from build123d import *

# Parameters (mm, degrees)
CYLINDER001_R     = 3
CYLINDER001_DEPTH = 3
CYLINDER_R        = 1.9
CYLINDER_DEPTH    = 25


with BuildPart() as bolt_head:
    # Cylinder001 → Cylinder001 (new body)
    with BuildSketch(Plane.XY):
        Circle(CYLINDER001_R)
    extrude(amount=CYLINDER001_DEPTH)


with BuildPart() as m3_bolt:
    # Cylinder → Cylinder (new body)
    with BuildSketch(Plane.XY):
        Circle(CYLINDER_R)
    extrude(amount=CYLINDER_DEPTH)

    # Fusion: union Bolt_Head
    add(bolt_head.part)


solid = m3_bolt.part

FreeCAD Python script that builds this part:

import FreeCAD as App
import Part
import Sketcher

V = App.Vector

doc = App.newDocument("Part")
body = doc.addObject("PartDesign::Body", "Body")

sketch1 = body.newObject("Sketcher::SketchObject", "Sketch")
sketch1.AttachmentSupport = (doc.getObject("XY_Plane"), [""])
sketch1.MapMode = "FlatFace"
sketch1.addGeometry(Part.Circle(V(0, 0, 0), V(0, 0, 1), 3), False)
sketch1.addConstraint([
    Sketcher.Constraint("Coincident", 0, 3, -1, 1),
    Sketcher.Constraint("Diameter", 0, 6.0),
])
pad1 = body.newObject("PartDesign::Pad", "Pad")
pad1.Profile = sketch1
pad1.Length = 3
body2 = doc.addObject("PartDesign::Body", "Body001")

sketch2 = body2.newObject("Sketcher::SketchObject", "Sketch001")
sketch2.AttachmentSupport = (doc.getObject("XY_Plane001"), [""])
sketch2.MapMode = "FlatFace"
sketch2.addGeometry(Part.Circle(V(0, 0, 0), V(0, 0, 1), 1.9), False)
sketch2.addConstraint([
    Sketcher.Constraint("Coincident", 0, 3, -1, 1),
    Sketcher.Constraint("Diameter", 0, 3.8),
])
pad2 = body2.newObject("PartDesign::Pad", "Pad001")
pad2.Profile = sketch2
pad2.Length = 25
doc.recompute()

boolean = body2.newObject("PartDesign::Boolean", "Boolean")
boolean.Type = "Fuse"
boolean.addObjects([body])

doc.recompute()
